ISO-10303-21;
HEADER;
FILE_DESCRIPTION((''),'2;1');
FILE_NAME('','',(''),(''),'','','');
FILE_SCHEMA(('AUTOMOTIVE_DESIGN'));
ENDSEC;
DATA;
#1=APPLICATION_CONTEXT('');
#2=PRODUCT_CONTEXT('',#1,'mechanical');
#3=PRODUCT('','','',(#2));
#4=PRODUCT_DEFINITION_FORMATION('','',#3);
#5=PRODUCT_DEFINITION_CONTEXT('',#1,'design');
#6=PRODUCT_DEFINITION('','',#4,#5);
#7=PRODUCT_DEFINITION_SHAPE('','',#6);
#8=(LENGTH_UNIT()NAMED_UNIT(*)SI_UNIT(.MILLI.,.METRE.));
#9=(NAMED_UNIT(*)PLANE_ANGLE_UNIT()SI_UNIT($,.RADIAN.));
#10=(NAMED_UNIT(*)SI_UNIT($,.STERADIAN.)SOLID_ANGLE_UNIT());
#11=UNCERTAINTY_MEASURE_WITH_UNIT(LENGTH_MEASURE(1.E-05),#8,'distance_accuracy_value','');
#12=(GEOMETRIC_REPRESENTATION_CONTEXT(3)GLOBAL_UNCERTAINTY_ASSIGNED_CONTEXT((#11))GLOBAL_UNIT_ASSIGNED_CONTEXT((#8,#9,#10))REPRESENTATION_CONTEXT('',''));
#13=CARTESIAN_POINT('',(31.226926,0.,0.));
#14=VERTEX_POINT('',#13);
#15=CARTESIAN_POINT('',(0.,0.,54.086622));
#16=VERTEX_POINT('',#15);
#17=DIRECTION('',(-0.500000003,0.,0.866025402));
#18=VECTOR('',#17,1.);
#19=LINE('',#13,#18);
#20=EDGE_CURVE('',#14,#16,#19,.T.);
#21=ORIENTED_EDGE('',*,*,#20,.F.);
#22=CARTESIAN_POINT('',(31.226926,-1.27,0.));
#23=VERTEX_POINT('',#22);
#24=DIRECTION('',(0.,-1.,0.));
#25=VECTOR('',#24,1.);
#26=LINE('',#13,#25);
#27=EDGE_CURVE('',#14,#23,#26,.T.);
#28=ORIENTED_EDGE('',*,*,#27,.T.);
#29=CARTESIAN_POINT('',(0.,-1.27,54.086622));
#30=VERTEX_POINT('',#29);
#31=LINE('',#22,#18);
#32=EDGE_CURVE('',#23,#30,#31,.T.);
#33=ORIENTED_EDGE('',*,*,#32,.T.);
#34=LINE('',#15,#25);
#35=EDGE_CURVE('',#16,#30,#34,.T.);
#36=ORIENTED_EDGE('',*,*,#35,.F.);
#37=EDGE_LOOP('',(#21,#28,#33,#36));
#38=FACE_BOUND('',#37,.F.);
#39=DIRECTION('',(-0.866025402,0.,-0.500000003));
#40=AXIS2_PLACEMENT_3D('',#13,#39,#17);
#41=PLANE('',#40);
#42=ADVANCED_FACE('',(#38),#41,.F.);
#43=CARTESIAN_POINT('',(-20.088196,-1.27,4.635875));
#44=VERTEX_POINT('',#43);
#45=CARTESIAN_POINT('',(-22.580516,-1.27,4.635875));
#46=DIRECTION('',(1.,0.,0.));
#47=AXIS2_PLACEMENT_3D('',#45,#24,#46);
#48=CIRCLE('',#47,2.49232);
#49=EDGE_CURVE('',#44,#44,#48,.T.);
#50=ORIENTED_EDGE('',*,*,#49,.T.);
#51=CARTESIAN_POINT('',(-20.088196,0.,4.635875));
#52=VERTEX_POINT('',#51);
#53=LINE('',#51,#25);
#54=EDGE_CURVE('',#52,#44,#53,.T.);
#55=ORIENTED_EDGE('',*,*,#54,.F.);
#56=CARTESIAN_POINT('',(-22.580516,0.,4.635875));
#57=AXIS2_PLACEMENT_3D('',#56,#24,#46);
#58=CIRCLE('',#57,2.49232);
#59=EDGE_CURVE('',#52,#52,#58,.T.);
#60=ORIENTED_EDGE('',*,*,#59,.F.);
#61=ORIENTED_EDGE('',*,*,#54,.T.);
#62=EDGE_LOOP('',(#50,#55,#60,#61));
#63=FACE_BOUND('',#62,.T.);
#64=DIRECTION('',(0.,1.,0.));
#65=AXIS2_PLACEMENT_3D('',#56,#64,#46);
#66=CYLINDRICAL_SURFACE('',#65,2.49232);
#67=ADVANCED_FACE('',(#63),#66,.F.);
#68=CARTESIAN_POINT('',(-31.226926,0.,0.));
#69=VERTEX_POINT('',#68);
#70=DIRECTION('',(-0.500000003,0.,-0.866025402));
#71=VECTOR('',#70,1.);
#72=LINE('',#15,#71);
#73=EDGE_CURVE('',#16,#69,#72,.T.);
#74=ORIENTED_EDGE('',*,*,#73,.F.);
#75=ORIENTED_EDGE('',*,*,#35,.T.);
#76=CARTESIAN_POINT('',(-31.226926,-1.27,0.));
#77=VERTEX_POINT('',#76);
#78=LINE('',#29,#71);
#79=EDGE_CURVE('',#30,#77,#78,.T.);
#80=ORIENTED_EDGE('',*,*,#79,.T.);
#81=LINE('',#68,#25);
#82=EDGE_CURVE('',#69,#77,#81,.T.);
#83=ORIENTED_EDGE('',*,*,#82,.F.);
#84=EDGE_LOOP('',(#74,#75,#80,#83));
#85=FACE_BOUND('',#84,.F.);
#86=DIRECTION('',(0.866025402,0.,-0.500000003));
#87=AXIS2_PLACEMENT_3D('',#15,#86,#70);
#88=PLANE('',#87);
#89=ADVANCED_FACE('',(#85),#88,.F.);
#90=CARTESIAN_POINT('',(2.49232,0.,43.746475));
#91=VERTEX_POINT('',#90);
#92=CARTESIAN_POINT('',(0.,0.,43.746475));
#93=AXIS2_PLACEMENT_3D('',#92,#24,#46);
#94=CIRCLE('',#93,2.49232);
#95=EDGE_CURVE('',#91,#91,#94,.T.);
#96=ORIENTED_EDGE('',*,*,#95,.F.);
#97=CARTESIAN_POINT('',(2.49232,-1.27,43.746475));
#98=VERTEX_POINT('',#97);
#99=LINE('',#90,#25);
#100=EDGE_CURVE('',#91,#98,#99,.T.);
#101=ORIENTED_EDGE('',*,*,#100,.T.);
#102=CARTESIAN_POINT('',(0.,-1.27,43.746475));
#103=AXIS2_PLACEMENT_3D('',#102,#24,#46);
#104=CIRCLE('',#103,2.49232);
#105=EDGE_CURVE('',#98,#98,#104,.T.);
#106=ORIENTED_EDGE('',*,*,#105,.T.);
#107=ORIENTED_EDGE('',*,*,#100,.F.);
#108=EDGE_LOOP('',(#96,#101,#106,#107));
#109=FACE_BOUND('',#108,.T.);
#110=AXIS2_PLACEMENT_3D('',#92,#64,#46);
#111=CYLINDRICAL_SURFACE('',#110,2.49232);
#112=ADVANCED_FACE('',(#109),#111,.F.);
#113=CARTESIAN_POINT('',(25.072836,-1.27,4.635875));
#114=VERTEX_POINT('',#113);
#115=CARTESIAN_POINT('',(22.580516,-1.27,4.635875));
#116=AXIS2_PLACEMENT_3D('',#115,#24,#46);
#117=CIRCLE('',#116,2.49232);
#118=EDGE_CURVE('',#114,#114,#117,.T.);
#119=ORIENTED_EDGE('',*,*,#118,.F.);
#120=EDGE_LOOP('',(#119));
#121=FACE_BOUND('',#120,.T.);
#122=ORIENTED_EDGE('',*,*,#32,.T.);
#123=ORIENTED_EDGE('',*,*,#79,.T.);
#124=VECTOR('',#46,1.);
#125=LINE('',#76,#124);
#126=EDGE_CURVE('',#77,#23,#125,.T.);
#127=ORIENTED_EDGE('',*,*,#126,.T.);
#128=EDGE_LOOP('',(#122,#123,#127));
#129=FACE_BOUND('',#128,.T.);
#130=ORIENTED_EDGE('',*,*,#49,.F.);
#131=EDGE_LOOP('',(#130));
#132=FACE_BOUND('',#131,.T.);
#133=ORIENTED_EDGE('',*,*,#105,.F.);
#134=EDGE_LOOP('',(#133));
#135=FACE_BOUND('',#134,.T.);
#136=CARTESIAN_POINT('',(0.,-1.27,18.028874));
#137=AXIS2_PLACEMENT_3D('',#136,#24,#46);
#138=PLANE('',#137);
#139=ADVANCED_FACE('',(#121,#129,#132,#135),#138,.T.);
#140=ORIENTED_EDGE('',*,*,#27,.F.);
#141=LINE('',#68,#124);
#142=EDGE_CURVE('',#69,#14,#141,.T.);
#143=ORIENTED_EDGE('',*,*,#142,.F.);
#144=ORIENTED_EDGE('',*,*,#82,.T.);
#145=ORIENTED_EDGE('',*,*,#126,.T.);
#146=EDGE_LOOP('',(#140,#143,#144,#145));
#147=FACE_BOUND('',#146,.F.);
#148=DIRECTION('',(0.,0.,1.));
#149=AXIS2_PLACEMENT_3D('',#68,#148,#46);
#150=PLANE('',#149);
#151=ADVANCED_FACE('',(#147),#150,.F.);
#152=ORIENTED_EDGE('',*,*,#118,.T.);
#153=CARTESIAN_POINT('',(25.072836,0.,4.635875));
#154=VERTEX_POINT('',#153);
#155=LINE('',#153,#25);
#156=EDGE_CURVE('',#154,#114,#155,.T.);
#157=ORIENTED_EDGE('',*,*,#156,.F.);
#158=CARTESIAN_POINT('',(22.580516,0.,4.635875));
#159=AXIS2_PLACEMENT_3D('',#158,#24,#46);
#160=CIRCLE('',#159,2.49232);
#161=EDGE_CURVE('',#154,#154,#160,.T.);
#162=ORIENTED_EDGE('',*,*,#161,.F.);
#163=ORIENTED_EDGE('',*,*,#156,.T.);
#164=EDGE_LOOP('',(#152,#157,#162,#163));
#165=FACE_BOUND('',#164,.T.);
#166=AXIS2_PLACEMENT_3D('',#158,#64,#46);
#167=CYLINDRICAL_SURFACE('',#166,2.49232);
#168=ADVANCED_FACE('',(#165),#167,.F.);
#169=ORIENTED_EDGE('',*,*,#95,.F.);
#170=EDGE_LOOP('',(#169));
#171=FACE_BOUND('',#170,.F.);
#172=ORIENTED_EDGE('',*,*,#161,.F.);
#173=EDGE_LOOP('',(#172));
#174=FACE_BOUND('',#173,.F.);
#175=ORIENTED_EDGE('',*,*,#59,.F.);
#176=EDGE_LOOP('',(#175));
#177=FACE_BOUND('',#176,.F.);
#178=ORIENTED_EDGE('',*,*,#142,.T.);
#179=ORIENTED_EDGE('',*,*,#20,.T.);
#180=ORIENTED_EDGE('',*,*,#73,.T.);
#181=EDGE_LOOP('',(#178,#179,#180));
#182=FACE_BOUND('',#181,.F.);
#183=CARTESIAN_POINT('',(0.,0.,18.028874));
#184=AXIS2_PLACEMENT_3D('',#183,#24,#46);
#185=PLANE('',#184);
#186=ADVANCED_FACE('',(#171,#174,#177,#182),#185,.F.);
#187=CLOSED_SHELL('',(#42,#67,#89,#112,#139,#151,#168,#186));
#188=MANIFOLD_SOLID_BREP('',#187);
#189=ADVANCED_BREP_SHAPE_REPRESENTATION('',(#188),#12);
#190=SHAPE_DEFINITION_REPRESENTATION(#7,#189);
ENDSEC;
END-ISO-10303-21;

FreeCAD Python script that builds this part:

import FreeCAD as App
import Part
import Sketcher
from FreeCAD import Vector
Q = App.Units.Quantity

doc = App.newDocument("Part")
body = doc.addObject("PartDesign::Body", "Body")

# Sketch on XZ plane
sketch1 = doc.addObject("Sketcher::SketchObject", "Sketch")
body.addObject(sketch1)
sketch1.AttachmentSupport = (doc.XZ_Plane, [""])
sketch1.MapMode = "FlatFace"
sketch1.addGeometry([
    Part.LineSegment(Vector(0, 54.1, 0), Vector(-31.2, 0, 0)),  # 0
    Part.LineSegment(Vector(-31.2, 0, 0), Vector(31.2, 0, 0)),  # 1
    Part.LineSegment(Vector(31.2, 0, 0), Vector(0, 54.1, 0)),  # 2
    Part.Circle(Vector(-22.6, 4.6, 0), Vector(0, 0, 1), 2.5),  # 3
    Part.Circle(Vector(22.6, 4.6, 0), Vector(0, 0, 1), 2.5),  # 4
    Part.Circle(Vector(0, 43.7, 0), Vector(0, 0, 1), 2.5),  # 5
], False)
sketch1.addConstraint([
    Sketcher.Constraint("Coincident", 0, 2, 1, 1),
    Sketcher.Constraint("Coincident", 1, 2, 2, 1),
    Sketcher.Constraint("Coincident", 2, 2, 0, 1),
    Sketcher.Constraint("Horizontal", 1),
    Sketcher.Constraint("Equal", 3, 4),
    Sketcher.Constraint("Equal", 4, 5),
    Sketcher.Constraint("Symmetric", 0, 2, 1, 2, -1, 1),
    Sketcher.Constraint("Symmetric", 3, 3, 4, 3, -2),
    Sketcher.Constraint("PointOnObject", 5, 3, -2),
    Sketcher.Constraint("PointOnObject", 2, 2, -2),
    Sketcher.Constraint("Angle", 0, Q("-120 deg")),
    Sketcher.Constraint("Diameter", 3, 4.98464),
    Sketcher.Constraint("DistanceX", 1, 1, 1, 2, 62.453852),
    Sketcher.Constraint("DistanceY", 3, 3, 5, 3, 39.1106),
    Sketcher.Constraint("DistanceX", 0, 2, 3, 3, 8.64641),
    Sketcher.Constraint("DistanceY", -1, 1, 3, 3, 4.635875),
])
pad1 = doc.addObject("PartDesign::Pad", "Pad")
body.addObject(pad1)
pad1.Profile = sketch1
pad1.Length = Q("0.05 in")

doc.recompute()
